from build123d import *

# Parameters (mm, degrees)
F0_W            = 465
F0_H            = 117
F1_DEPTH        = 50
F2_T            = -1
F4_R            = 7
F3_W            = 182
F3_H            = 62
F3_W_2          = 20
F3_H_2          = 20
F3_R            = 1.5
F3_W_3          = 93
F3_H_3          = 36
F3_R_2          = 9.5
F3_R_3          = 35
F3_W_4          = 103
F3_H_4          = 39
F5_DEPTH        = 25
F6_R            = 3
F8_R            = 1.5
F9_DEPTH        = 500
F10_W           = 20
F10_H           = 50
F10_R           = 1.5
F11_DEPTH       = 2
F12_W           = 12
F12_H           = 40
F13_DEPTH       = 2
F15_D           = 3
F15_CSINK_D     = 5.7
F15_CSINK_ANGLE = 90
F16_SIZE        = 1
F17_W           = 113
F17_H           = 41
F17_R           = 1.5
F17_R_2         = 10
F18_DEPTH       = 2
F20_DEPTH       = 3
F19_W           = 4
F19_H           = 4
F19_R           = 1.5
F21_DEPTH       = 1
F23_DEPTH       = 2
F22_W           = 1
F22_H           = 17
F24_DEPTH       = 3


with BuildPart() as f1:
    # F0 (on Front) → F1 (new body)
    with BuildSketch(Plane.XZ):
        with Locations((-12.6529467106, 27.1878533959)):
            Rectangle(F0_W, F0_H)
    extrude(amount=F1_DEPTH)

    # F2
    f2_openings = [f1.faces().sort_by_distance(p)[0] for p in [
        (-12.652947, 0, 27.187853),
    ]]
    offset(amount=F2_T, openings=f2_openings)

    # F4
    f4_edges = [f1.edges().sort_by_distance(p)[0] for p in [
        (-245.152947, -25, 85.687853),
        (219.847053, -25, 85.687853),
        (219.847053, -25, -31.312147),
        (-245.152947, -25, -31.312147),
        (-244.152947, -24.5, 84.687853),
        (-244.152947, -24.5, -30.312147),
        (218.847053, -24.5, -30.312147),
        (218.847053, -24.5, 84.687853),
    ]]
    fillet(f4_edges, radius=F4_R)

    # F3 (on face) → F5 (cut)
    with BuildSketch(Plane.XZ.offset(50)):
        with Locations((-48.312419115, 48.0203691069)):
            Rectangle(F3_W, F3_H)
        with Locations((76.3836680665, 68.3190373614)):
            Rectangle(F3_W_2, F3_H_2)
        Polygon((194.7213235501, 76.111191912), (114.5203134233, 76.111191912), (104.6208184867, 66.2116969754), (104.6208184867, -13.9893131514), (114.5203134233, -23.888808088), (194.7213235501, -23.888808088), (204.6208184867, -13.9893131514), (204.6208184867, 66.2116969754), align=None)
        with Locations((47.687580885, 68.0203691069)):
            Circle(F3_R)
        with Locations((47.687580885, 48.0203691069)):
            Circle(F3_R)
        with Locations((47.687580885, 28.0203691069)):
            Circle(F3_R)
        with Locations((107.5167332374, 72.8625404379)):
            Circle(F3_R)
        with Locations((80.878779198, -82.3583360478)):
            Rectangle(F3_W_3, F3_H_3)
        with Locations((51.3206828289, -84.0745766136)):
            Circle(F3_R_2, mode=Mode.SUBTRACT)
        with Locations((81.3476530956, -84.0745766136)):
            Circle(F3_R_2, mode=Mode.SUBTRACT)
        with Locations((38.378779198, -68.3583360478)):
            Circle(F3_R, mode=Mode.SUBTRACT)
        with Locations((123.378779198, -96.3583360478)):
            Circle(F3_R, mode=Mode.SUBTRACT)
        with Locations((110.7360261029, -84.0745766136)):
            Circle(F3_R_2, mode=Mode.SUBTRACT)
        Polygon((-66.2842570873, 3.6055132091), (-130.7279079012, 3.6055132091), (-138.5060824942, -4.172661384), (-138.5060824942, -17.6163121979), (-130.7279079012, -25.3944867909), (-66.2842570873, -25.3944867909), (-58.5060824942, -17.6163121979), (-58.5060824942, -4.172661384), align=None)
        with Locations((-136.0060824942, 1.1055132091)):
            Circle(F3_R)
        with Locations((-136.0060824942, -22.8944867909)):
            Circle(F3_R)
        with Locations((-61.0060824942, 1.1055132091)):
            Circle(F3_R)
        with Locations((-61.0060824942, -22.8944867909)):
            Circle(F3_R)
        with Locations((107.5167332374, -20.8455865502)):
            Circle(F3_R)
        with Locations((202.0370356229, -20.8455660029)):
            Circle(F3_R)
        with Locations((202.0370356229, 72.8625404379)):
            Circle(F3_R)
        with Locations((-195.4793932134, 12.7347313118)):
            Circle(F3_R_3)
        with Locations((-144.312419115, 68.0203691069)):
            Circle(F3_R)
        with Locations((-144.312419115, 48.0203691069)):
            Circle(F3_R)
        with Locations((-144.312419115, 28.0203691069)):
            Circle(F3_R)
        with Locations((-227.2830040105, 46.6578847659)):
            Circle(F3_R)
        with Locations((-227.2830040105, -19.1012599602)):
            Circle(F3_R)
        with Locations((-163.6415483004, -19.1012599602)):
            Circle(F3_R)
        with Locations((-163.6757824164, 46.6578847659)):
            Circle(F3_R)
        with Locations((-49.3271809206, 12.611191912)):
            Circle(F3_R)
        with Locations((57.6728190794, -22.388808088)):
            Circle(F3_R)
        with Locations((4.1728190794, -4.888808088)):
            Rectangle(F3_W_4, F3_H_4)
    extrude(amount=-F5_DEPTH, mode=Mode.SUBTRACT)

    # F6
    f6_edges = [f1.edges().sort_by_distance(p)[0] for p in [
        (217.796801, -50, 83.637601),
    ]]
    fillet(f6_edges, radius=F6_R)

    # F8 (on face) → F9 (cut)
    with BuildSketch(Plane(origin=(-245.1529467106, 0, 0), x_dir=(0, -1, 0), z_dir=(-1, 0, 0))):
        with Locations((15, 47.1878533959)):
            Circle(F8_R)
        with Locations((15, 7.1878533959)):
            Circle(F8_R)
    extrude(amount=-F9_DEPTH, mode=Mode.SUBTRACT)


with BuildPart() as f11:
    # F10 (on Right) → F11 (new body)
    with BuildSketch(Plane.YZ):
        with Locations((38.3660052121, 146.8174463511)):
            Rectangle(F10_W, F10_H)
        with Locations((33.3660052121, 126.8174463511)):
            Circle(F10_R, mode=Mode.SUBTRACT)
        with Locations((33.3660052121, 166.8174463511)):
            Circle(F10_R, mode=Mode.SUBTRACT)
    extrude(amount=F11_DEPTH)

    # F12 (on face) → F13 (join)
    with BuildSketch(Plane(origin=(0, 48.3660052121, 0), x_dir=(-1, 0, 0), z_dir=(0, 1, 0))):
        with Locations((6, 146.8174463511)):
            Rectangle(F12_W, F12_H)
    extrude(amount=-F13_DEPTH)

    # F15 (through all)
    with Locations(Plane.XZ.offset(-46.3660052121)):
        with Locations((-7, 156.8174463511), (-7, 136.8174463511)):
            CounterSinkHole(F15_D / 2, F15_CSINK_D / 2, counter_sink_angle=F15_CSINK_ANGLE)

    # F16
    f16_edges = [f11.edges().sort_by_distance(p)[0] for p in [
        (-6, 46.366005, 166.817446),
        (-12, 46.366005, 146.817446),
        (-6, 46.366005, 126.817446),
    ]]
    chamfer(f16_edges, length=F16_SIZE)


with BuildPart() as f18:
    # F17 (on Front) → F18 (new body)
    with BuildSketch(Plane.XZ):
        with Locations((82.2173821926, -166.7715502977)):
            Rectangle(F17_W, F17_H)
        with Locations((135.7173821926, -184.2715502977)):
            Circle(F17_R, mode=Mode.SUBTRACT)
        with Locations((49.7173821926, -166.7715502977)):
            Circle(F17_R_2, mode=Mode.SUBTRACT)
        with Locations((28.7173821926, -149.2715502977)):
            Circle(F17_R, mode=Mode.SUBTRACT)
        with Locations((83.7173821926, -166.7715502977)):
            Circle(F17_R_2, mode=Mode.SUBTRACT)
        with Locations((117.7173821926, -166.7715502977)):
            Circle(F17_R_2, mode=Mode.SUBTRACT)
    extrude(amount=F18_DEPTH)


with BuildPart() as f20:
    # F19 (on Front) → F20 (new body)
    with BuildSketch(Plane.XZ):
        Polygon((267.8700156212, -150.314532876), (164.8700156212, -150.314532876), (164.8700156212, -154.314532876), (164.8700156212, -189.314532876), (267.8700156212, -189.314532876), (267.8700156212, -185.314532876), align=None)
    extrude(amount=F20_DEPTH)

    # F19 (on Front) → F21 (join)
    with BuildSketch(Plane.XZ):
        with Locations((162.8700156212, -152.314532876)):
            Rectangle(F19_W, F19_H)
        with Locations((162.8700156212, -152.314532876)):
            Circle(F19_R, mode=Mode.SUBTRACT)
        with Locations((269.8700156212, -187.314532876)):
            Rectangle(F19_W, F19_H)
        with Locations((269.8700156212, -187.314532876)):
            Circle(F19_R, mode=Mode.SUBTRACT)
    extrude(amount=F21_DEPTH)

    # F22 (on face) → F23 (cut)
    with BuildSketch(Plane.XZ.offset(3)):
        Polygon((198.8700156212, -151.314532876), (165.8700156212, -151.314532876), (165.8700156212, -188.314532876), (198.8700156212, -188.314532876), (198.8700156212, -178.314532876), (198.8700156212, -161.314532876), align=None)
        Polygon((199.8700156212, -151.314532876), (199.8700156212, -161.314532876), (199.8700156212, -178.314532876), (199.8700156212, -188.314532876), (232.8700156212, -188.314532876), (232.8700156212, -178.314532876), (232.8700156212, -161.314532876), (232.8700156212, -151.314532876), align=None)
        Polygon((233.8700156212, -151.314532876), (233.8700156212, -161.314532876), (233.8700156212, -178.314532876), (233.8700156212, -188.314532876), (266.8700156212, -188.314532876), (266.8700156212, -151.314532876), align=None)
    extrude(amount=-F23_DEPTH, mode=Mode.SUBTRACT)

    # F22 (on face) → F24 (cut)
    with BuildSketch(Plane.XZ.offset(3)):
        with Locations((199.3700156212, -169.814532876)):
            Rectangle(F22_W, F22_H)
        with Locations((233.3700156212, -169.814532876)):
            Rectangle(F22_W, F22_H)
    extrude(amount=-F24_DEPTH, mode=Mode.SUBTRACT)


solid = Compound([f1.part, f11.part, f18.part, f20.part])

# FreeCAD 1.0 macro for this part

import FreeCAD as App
import Part
import Sketcher


def edges_at(feature, points):
    """Names of the edges that pass closest to the given points."""
    edges = feature.Shape.Edges
    near = lambda p: min(range(len(edges)), key=lambda i: edges[i].distToShape(Part.Vertex(*p))[0])
    return sorted({f"Edge{near(p) + 1}" for p in points})


def faces_at(feature, points):
    """Names of the faces that lie closest to the given points."""
    faces = feature.Shape.Faces
    near = lambda p: min(range(len(faces)), key=lambda i: faces[i].distToShape(Part.Vertex(*p))[0])
    return sorted({f"Face{near(p) + 1}" for p in points})

doc = App.newDocument("Part")
body = doc.addObject("PartDesign::Body", "Body")

# Sketch on XZ plane
sketch1 = body.newObject("Sketcher::SketchObject", "Sketch")
sketch1.AttachmentSupport = (doc.getObject("XZ_Plane"), [""])
sketch1.MapMode = "FlatFace"
sketch1.addGeometry(Part.LineSegment(App.Vector(-245, 86, 0), App.Vector(-245, -31, 0)), False)
sketch1.addGeometry(Part.LineSegment(App.Vector(-245, -31, 0), App.Vector(220, -31, 0)), False)
sketch1.addGeometry(Part.LineSegment(App.Vector(220, -31, 0), App.Vector(220, 86, 0)), False)
sketch1.addGeometry(Part.LineSegment(App.Vector(220, 86, 0), App.Vector(-245, 86, 0)), False)
sketch1.addConstraint(Sketcher.Constraint("Coincident", 0, 2, 1, 1))
sketch1.addConstraint(Sketcher.Constraint("Coincident", 1, 2, 2, 1))
sketch1.addConstraint(Sketcher.Constraint("Coincident", 2, 2, 3, 1))
sketch1.addConstraint(Sketcher.Constraint("Coincident", 3, 2, 0, 1))
sketch1.addConstraint(Sketcher.Constraint("Vertical", 0))
sketch1.addConstraint(Sketcher.Constraint("Horizontal", 1))
sketch1.addConstraint(Sketcher.Constraint("Vertical", 2))
sketch1.addConstraint(Sketcher.Constraint("Horizontal", 3))
sketch1.addConstraint(Sketcher.Constraint("DistanceX", 1, 1, 1, 2, 465.0))
sketch1.addConstraint(Sketcher.Constraint("DistanceY", 0, 2, 0, 1, 117.0))
sketch1.addConstraint(Sketcher.Constraint("DistanceX", 0, 2, -1, 1, 245.152947))
sketch1.addConstraint(Sketcher.Constraint("DistanceY", 0, 2, -1, 1, 31.312147))
pad1 = body.newObject("PartDesign::Pad", "Pad")
pad1.Profile = sketch1
pad1.Length = 50
doc.recompute()

thickness = body.newObject("PartDesign::Thickness", "Thickness")
thickness.Base = (pad1, faces_at(pad1, [(-12.653, 0, 27.188)]))
thickness.Value = 1
thickness.Reversed = True
thickness.Join = "Arc"
doc.recompute()

fillet = body.newObject("PartDesign::Fillet", "Fillet")
fillet.Base = (thickness, edges_at(thickness, [
    (-245.153, -25, 85.688),
    (219.847, -25, 85.688),
    (219.847, -25, -31.312),
    (-245.153, -25, -31.312),
    (-244.153, -24.5, 84.688),
    (-244.153, -24.5, -30.312),
    (218.847, -24.5, -30.312),
    (218.847, -24.5, 84.688),
]))
fillet.Radius = 7

# Sketch on XZ plane
sketch2 = body.newObject("Sketcher::SketchObject", "Sketch001")
sketch2.AttachmentSupport = (doc.getObject("XZ_Plane"), [""])
sketch2.MapMode = "FlatFace"
sketch2.AttachmentOffset = App.Placement(App.Vector(0, 0, 50), App.Rotation())
sketch2.addGeometry(Part.LineSegment(App.Vector(-139.3, 79, 0), App.Vector(-139.3, 17, 0)), False)
sketch2.addGeometry(Part.LineSegment(App.Vector(-139.3, 17, 0), App.Vector(42.7, 17, 0)), False)
sketch2.addGeometry(Part.LineSegment(App.Vector(42.7, 17, 0), App.Vector(42.7, 79, 0)), False)
sketch2.addGeometry(Part.LineSegment(App.Vector(42.7, 79, 0), App.Vector(-139.3, 79, 0)), False)
sketch2.addGeometry(Part.LineSegment(App.Vector(66.4, 78.3, 0), App.Vector(66.4, 58.3, 0)), False)
sketch2.addGeometry(Part.LineSegment(App.Vector(66.4, 58.3, 0), App.Vector(86.4, 58.3, 0)), False)
sketch2.addGeometry(Part.LineSegment(App.Vector(86.4, 58.3, 0), App.Vector(86.4, 78.3, 0)), False)
sketch2.addGeometry(Part.LineSegment(App.Vector(86.4, 78.3, 0), App.Vector(66.4, 78.3, 0)), False)
sketch2.addGeometry(Part.LineSegment(App.Vector(194.7, 76.1, 0), App.Vector(114.5, 76.1, 0)), False)
sketch2.addGeometry(Part.LineSegment(App.Vector(114.5, 76.1, 0), App.Vector(104.6, 66.2, 0)), False)
sketch2.addGeometry(Part.LineSegment(App.Vector(104.6, 66.2, 0), App.Vector(104.6, -14, 0)), False)
sketch2.addGeometry(Part.LineSegment(App.Vector(104.6, -14, 0), App.Vector(114.5, -23.9, 0)), False)
sketch2.addGeometry(Part.LineSegment(App.Vector(114.5, -23.9, 0), App.Vector(194.7, -23.9, 0)), False)
sketch2.addGeometry(Part.LineSegment(App.Vector(194.7, -23.9, 0), App.Vector(204.6, -14, 0)), False)
sketch2.addGeometry(Part.LineSegment(App.Vector(204.6, -14, 0), App.Vector(204.6, 66.2, 0)), False)
sketch2.addGeometry(Part.LineSegment(App.Vector(204.6, 66.2, 0), App.Vector(194.7, 76.1, 0)), False)
sketch2.addGeometry(Part.Circle(App.Vector(47.7, 68, 0), App.Vector(0, 0, 1), 1.5), False)
sketch2.addGeometry(Part.Circle(App.Vector(47.7, 48, 0), App.Vector(0, 0, 1), 1.5), False)
sketch2.addGeometry(Part.Circle(App.Vector(47.7, 28, 0), App.Vector(0, 0, 1), 1.5), False)
sketch2.addGeometry(Part.Circle(App.Vector(107.5, 72.9, 0), App.Vector(0, 0, 1), 1.5), False)
sketch2.addGeometry(Part.LineSegment(App.Vector(34.4, -64.4, 0), App.Vector(34.4, -100.4, 0)), False)
sketch2.addGeometry(Part.LineSegment(App.Vector(34.4, -100.4, 0), App.Vector(127.4, -100.4, 0)), False)
sketch2.addGeometry(Part.LineSegment(App.Vector(127.4, -100.4, 0), App.Vector(127.4, -64.4, 0)), False)
sketch2.addGeometry(Part.LineSegment(App.Vector(127.4, -64.4, 0), App.Vector(34.4, -64.4, 0)), False)
sketch2.addGeometry(Part.Circle(App.Vector(51.3, -84.1, 0), App.Vector(0, 0, 1), 9.5), False)
sketch2.addGeometry(Part.Circle(App.Vector(123.4, -96.4, 0), App.Vector(0, 0, 1), 1.5), False)
sketch2.addGeometry(Part.Circle(App.Vector(81.3, -84.1, 0), App.Vector(0, 0, 1), 9.5), False)
sketch2.addGeometry(Part.Circle(App.Vector(110.7, -84.1, 0), App.Vector(0, 0, 1), 9.5), False)
sketch2.addGeometry(Part.Circle(App.Vector(38.4, -68.4, 0), App.Vector(0, 0, 1), 1.5), False)
sketch2.addGeometry(Part.LineSegment(App.Vector(-66.3, 3.6, 0), App.Vector(-130.7, 3.6, 0)), False)
sketch2.addGeometry(Part.LineSegment(App.Vector(-130.7, 3.6, 0), App.Vector(-138.5, -4.2, 0)), False)
sketch2.addGeometry(Part.LineSegment(App.Vector(-138.5, -4.2, 0), App.Vector(-138.5, -17.6, 0)), False)
sketch2.addGeometry(Part.LineSegment(App.Vector(-138.5, -17.6, 0), App.Vector(-130.7, -25.4, 0)), False)
sketch2.addGeometry(Part.LineSegment(App.Vector(-130.7, -25.4, 0), App.Vector(-66.3, -25.4, 0)), False)
sketch2.addGeometry(Part.LineSegment(App.Vector(-66.3, -25.4, 0), App.Vector(-58.5, -17.6, 0)), False)
sketch2.addGeometry(Part.LineSegment(App.Vector(-58.5, -17.6, 0), App.Vector(-58.5, -4.2, 0)), False)
sketch2.addGeometry(Part.LineSegment(App.Vector(-58.5, -4.2, 0), App.Vector(-66.3, 3.6, 0)), False)
sketch2.addGeometry(Part.Circle(App.Vector(-136, 1.1, 0), App.Vector(0, 0, 1), 1.5), False)
sketch2.addGeometry(Part.Circle(App.Vector(-136, -22.9, 0), App.Vector(0, 0, 1), 1.5), False)
sketch2.addGeometry(Part.Circle(App.Vector(-61, 1.1, 0), App.Vector(0, 0, 1), 1.5), False)
sketch2.addGeometry(Part.Circle(App.Vector(-61, -22.9, 0), App.Vector(0, 0, 1), 1.5), False)
sketch2.addGeometry(Part.Circle(App.Vector(107.5, -20.8, 0), App.Vector(0, 0, 1), 1.5), False)
sketch2.addGeometry(Part.Circle(App.Vector(202, -20.8, 0), App.Vector(0, 0, 1), 1.5), False)
sketch2.addGeometry(Part.Circle(App.Vector(202, 72.9, 0), App.Vector(0, 0, 1), 1.5), False)
sketch2.addGeometry(Part.Circle(App.Vector(-195.5, 12.7, 0), App.Vector(0, 0, 1), 35), False)
sketch2.addGeometry(Part.Circle(App.Vector(-144.3, 68, 0), App.Vector(0, 0, 1), 1.5), False)
sketch2.addGeometry(Part.Circle(App.Vector(-144.3, 48, 0), App.Vector(0, 0, 1), 1.5), False)
sketch2.addGeometry(Part.Circle(App.Vector(-144.3, 28, 0), App.Vector(0, 0, 1), 1.5), False)
sketch2.addGeometry(Part.Circle(App.Vector(-227.3, 46.7, 0), App.Vector(0, 0, 1), 1.5), False)
sketch2.addGeometry(Part.Circle(App.Vector(-227.3, -19.1, 0), App.Vector(0, 0, 1), 1.5), False)
sketch2.addGeometry(Part.Circle(App.Vector(-163.6, -19.1, 0), App.Vector(0, 0, 1), 1.5), False)
sketch2.addGeometry(Part.Circle(App.Vector(-163.7, 46.7, 0), App.Vector(0, 0, 1), 1.5), False)
sketch2.addGeometry(Part.Circle(App.Vector(-49.3, 12.6, 0), App.Vector(0, 0, 1), 1.5), False)
sketch2.addGeometry(Part.Circle(App.Vector(57.7, -22.4, 0), App.Vector(0, 0, 1), 1.5), False)
sketch2.addGeometry(Part.LineSegment(App.Vector(-47.3, 14.6, 0), App.Vector(-47.3, -24.4, 0)), False)
sketch2.addGeometry(Part.LineSegment(App.Vector(-47.3, -24.4, 0), App.Vector(55.7, -24.4, 0)), False)
sketch2.addGeometry(Part.LineSegment(App.Vector(55.7, -24.4, 0), App.Vector(55.7, 14.6, 0)), False)
sketch2.addGeometry(Part.LineSegment(App.Vector(55.7, 14.6, 0), App.Vector(-47.3, 14.6, 0)), False)
sketch2.addConstraint(Sketcher.Constraint("Coincident", 0, 2, 1, 1))
sketch2.addConstraint(Sketcher.Constraint("Coincident", 1, 2, 2, 1))
sketch2.addConstraint(Sketcher.Constraint("Coincident", 2, 2, 3, 1))
sketch2.addConstraint(Sketcher.Constraint("Coincident", 3, 2, 0, 1))
sketch2.addConstraint(Sketcher.Constraint("Coincident", 4, 2, 5, 1))
sketch2.addConstraint(Sketcher.Constraint("Coincident", 5, 2, 6, 1))
sketch2.addConstraint(Sketcher.Constraint("Coincident", 6, 2, 7, 1))
sketch2.addConstraint(Sketcher.Constraint("Coincident", 7, 2, 4, 1))
sketch2.addConstraint(Sketcher.Constraint("Coincident", 8, 2, 9, 1))
sketch2.addConstraint(Sketcher.Constraint("Coincident", 9, 2, 10, 1))
sketch2.addConstraint(Sketcher.Constraint("Coincident", 10, 2, 11, 1))
sketch2.addConstraint(Sketcher.Constraint("Coincident", 11, 2, 12, 1))
sketch2.addConstraint(Sketcher.Constraint("Coincident", 12, 2, 13, 1))
sketch2.addConstraint(Sketcher.Constraint("Coincident", 13, 2, 14, 1))
sketch2.addConstraint(Sketcher.Constraint("Coincident", 14, 2, 15, 1))
sketch2.addConstraint(Sketcher.Constraint("Coincident", 15, 2, 8, 1))
sketch2.addConstraint(Sketcher.Constraint("Coincident", 20, 2, 21, 1))
sketch2.addConstraint(Sketcher.Constraint("Coincident", 21, 2, 22, 1))
sketch2.addConstraint(Sketcher.Constraint("Coincident", 22, 2, 23, 1))
sketch2.addConstraint(Sketcher.Constraint("Coincident", 23, 2, 20, 1))
sketch2.addConstraint(Sketcher.Constraint("Coincident", 29, 2, 30, 1))
sketch2.addConstraint(Sketcher.Constraint("Coincident", 30, 2, 31, 1))
sketch2.addConstraint(Sketcher.Constraint("Coincident", 31, 2, 32, 1))
sketch2.addConstraint(Sketcher.Constraint("Coincident", 32, 2, 33, 1))
sketch2.addConstraint(Sketcher.Constraint("Coincident", 33, 2, 34, 1))
sketch2.addConstraint(Sketcher.Constraint("Coincident", 34, 2, 35, 1))
sketch2.addConstraint(Sketcher.Constraint("Coincident", 35, 2, 36, 1))
sketch2.addConstraint(Sketcher.Constraint("Coincident", 36, 2, 29, 1))
sketch2.addConstraint(Sketcher.Constraint("Coincident", 54, 2, 55, 1))
sketch2.addConstraint(Sketcher.Constraint("Coincident", 55, 2, 56, 1))
sketch2.addConstraint(Sketcher.Constraint("Coincident", 56, 2, 57, 1))
sketch2.addConstraint(Sketcher.Constraint("Coincident", 57, 2, 54, 1))
sketch2.addConstraint(Sketcher.Constraint("Vertical", 0))
sketch2.addConstraint(Sketcher.Constraint("Horizontal", 1))
sketch2.addConstraint(Sketcher.Constraint("Vertical", 2))
sketch2.addConstraint(Sketcher.Constraint("Horizontal", 3))
sketch2.addConstraint(Sketcher.Constraint("Vertical", 4))
sketch2.addConstraint(Sketcher.Constraint("Horizontal", 5))
sketch2.addConstraint(Sketcher.Constraint("Vertical", 6))
sketch2.addConstraint(Sketcher.Constraint("Horizontal", 7))
sketch2.addConstraint(Sketcher.Constraint("Horizontal", 8))
sketch2.addConstraint(Sketcher.Constraint("Vertical", 10))
sketch2.addConstraint(Sketcher.Constraint("Horizontal", 12))
sketch2.addConstraint(Sketcher.Constraint("Vertical", 14))
sketch2.addConstraint(Sketcher.Constraint("Vertical", 20))
sketch2.addConstraint(Sketcher.Constraint("Horizontal", 21))
sketch2.addConstraint(Sketcher.Constraint("Vertical", 22))
sketch2.addConstraint(Sketcher.Constraint("Horizontal", 23))
sketch2.addConstraint(Sketcher.Constraint("Horizontal", 29))
sketch2.addConstraint(Sketcher.Constraint("Vertical", 31))
sketch2.addConstraint(Sketcher.Constraint("Horizontal", 33))
sketch2.addConstraint(Sketcher.Constraint("Vertical", 35))
sketch2.addConstraint(Sketcher.Constraint("Vertical", 54))
sketch2.addConstraint(Sketcher.Constraint("Horizontal", 55))
sketch2.addConstraint(Sketcher.Constraint("Vertical", 56))
sketch2.addConstraint(Sketcher.Constraint("Horizontal", 57))
sketch2.addConstraint(Sketcher.Constraint("Equal", 16, 17))
sketch2.addConstraint(Sketcher.Constraint("Equal", 17, 18))
sketch2.addConstraint(Sketcher.Constraint("Equal", 18, 19))
sketch2.addConstraint(Sketcher.Constraint("Equal", 19, 25))
sketch2.addConstraint(Sketcher.Constraint("Equal", 24, 26))
sketch2.addConstraint(Sketcher.Constraint("Equal", 26, 27))
sketch2.addConstraint(Sketcher.Constraint("Equal", 25, 28))
sketch2.addConstraint(Sketcher.Constraint("Equal", 28, 37))
sketch2.addConstraint(Sketcher.Constraint("Equal", 37, 38))
sketch2.addConstraint(Sketcher.Constraint("Equal", 38, 39))
sketch2.addConstraint(Sketcher.Constraint("Equal", 39, 40))
sketch2.addConstraint(Sketcher.Constraint("Equal", 40, 41))
sketch2.addConstraint(Sketcher.Constraint("Equal", 41, 42))
sketch2.addConstraint(Sketcher.Constraint("Equal", 42, 43))
sketch2.addConstraint(Sketcher.Constraint("Equal", 43, 45))
sketch2.addConstraint(Sketcher.Constraint("Equal", 45, 46))
sketch2.addConstraint(Sketcher.Constraint("Equal", 46, 47))
sketch2.addConstraint(Sketcher.Constraint("Equal", 47, 48))
sketch2.addConstraint(Sketcher.Constraint("Equal", 48, 49))
sketch2.addConstraint(Sketcher.Constraint("Equal", 49, 50))
sketch2.addConstraint(Sketcher.Constraint("Equal", 50, 51))
sketch2.addConstraint(Sketcher.Constraint("Equal", 51, 52))
sketch2.addConstraint(Sketcher.Constraint("Equal", 52, 53))
sketch2.addConstraint(Sketcher.Constraint("Perpendicular", 9, 11))
sketch2.addConstraint(Sketcher.Constraint("Perpendicular", 11, 13))
sketch2.addConstraint(Sketcher.Constraint("Perpendicular", 13, 15))
sketch2.addConstraint(Sketcher.Constraint("Perpendicular", 15, 30))
sketch2.addConstraint(Sketcher.Constraint("Perpendicular", 30, 32))
sketch2.addConstraint(Sketcher.Constraint("Perpendicular", 32, 34))
sketch2.addConstraint(Sketcher.Constraint("Perpendicular", 34, 36))
sketch2.addConstraint(Sketcher.Constraint("Horizontal", 24, 3, 26, 3))
sketch2.addConstraint(Sketcher.Constraint("Horizontal", 26, 3, 27, 3))
sketch2.addConstraint(Sketcher.Constraint("Horizontal", 37, 3, 39, 3))
sketch2.addConstraint(Sketcher.Constraint("Horizontal", 38, 3, 40, 3))
sketch2.addConstraint(Sketcher.Constraint("Horizontal", 19, 3, 43, 3))
sketch2.addConstraint(Sketcher.Constraint("Horizontal", 16, 3, 45, 3))
sketch2.addConstraint(Sketcher.Constraint("Horizontal", 17, 3, 46, 3))
sketch2.addConstraint(Sketcher.Constraint("Horizontal", 18, 3, 47, 3))
sketch2.addConstraint(Sketcher.Constraint("Horizontal", 49, 3, 50, 3))
sketch2.addConstraint(Sketcher.Constraint("Horizontal", 48, 3, 51, 3))
sketch2.addConstraint(Sketcher.Constraint("Horizontal", 10, 2, 13, 2))
sketch2.addConstraint(Sketcher.Constraint("Horizontal", 9, 2, 14, 2))
sketch2.addConstraint(Sketcher.Constraint("Horizontal", 31, 2, 34, 2))
sketch2.addConstraint(Sketcher.Constraint("Horizontal", 30, 2, 35, 2))
sketch2.addConstraint(Sketcher.Constraint("Vertical", 16, 3, 17, 3))
sketch2.addConstraint(Sketcher.Constraint("Vertical", 17, 3, 18, 3))
sketch2.addConstraint(Sketcher.Constraint("Vertical", 37, 3, 38, 3))
sketch2.addConstraint(Sketcher.Constraint("Vertical", 39, 3, 40, 3))
sketch2.addConstraint(Sketcher.Constraint("Vertical", 19, 3, 41, 3))
sketch2.addConstraint(Sketcher.Constraint("Vertical", 42, 3, 43, 3))
sketch2.addConstraint(Sketcher.Constraint("Vertical", 45, 3, 46, 3))
sketch2.addConstraint(Sketcher.Constraint("Vertical", 46, 3, 47, 3))
sketch2.addConstraint(Sketcher.Constraint("Vertical", 48, 3, 49, 3))
sketch2.addConstraint(Sketcher.Constraint("Vertical", 8, 2, 11, 2))
sketch2.addConstraint(Sketcher.Constraint("Vertical", 12, 2, 15, 2))
sketch2.addConstraint(Sketcher.Constraint("Vertical", 29, 2, 32, 2))
sketch2.addConstraint(Sketcher.Constraint("Equal", 7, 4))
sketch2.addConstraint(Sketcher.Constraint("Equal", 12, 10))
sketch2.addConstraint(Sketcher.Constraint("Diameter", 16, 3.0))
sketch2.addConstraint(Sketcher.Constraint("Diameter", 24, 19.0))
sketch2.addConstraint(Sketcher.Constraint("Diameter", 44, 70.0))
sketch2.addConstraint(Sketcher.Constraint("DistanceX", 1, 1, 1, 2, 182.0))
sketch2.addConstraint(Sketcher.Constraint("DistanceX", 5, 1, 5, 2, 20.0))
sketch2.addConstraint(Sketcher.Constraint("DistanceX", 21, 1, 21, 2, 93.0))
sketch2.addConstraint(Sketcher.Constraint("DistanceX", 55, 1, 55, 2, 103.0))
sketch2.addConstraint(Sketcher.Constraint("DistanceY", 0, 2, 0, 1, 62.0))
sketch2.addConstraint(Sketcher.Constraint("DistanceY", 20, 2, 20, 1, 36.0))
sketch2.addConstraint(Sketcher.Constraint("DistanceY", 54, 2, 54, 1, 39.0))
sketch2.addConstraint(Sketcher.Constraint("Distance", 9, 14.0))
sketch2.addConstraint(Sketcher.Constraint("Distance", 30, 11.0))
sketch2.addConstraint(Sketcher.Constraint("DistanceY", 17, 3, 16, 3, 20.0))
sketch2.addConstraint(Sketcher.Constraint("DistanceY", 18, 3, 17, 3, 20.0))
sketch2.addConstraint(Sketcher.Constraint("DistanceX", 28, 3, 25, 3, 85.0))
sketch2.addConstraint(Sketcher.Constraint("DistanceY", 25, 3, 28, 3, 28.0))
sketch2.addConstraint(Sketcher.Constraint("DistanceY", 38, 3, 37, 3, 24.0))
sketch2.addConstraint(Sketcher.Constraint("DistanceX", 37, 3, 39, 3, 75.0))
sketch2.addConstraint(Sketcher.Constraint("DistanceX", 47, 3, 0, 2, 5.0))
sketch2.addConstraint(Sketcher.Constraint("DistanceY", 0, 2, 47, 3, 11.0))
sketch2.addConstraint(Sketcher.Constraint("DistanceX", 1, 2, 18, 3, 5.0))
sketch2.addConstraint(Sketcher.Constraint("DistanceX", 20, 2, 28, 3, 4.0))
sketch2.addConstraint(Sketcher.Constraint("DistanceY", 20, 2, 28, 3, 32.0))
sketch2.addConstraint(Sketcher.Constraint("DistanceY", 32, 2, 29, 2, 29.0))
sketch2.addConstraint(Sketcher.Constraint("DistanceX", 55, 2, 53, 3, 2.0))
sketch2.addConstraint(Sketcher.Constraint("DistanceY", 55, 2, 53, 3, 2.0))
sketch2.addConstraint(Sketcher.Constraint("DistanceX", 52, 3, 57, 2, 2.0))
sketch2.addConstraint(Sketcher.Constraint("DistanceY", 52, 3, 57, 2, 2.0))
sketch2.addConstraint(Sketcher.Constraint("DistanceY", 11, 2, 53, 3, 1.5))
sketch2.addConstraint(Sketcher.Constraint("DistanceY", 37, 3, 29, 2, 2.5))
sketch2.addConstraint(Sketcher.Constraint("DistanceX", 30, 2, 37, 3, 2.5))
sketch2.addConstraint(Sketcher.Constraint("DistanceX", 40, 3, 34, 2, 2.5))
sketch2.addConstraint(Sketcher.Constraint("DistanceX", 53, 3, 10, 2, 46.947999))
sketch2.addConstraint(Sketcher.Constraint("DistanceX", 8, 2, 8, 1, 80.20101))
sketch2.addConstraint(Sketcher.Constraint("DistanceX", 18, 3, 24, 3, 3.633102))
sketch2.addConstraint(Sketcher.Constraint("DistanceX", 18, 3, 25, 3, 75.691198))
sketch2.addConstraint(Sketcher.Constraint("DistanceX", 51, 3, 37, 3, 27.6697))
sketch2.addConstraint(Sketcher.Constraint("DistanceX", 39, 3, 52, 3, 11.678902))
sketch2.addConstraint(Sketcher.Constraint("DistanceY", 50, 3, 30, 2, 14.928599))
sketch2.addConstraint(Sketcher.Constraint("DistanceX", -1, 1, 16, 3, 47.687581))
sketch2.addConstraint(Sketcher.Constraint("DistanceY", -1, 1, 16, 3, 68.020369))
sketch2.addConstraint(Sketcher.Constraint("DistanceY", -1, 1, 19, 3, 72.86254))
sketch2.addConstraint(Sketcher.Constraint("DistanceY", -1, 1, 44, 3, 12.734731))
sketch2.addConstraint(Sketcher.Constraint("DistanceY", 49, 3, -1, 1, 19.10126))
sketch2.addConstraint(Sketcher.Constraint("DistanceX", 50, 3, -1, 1, 163.641548))
sketch2.addConstraint(Sketcher.Constraint("DistanceX", 52, 3, -1, 1, 49.327181))
sketch2.addConstraint(Sketcher.Constraint("DistanceY", -1, 1, 52, 3, 12.611192))
sketch2.addConstraint(Sketcher.Constraint("DistanceX", -1, 1, 4, 2, 66.383668))
sketch2.addConstraint(Sketcher.Constraint("DistanceX", 24, 3, 19, 3, 56.19605))
sketch2.addConstraint(Sketcher.Constraint("DistanceY", 25, 3, 24, 3, 12.283759))
sketch2.addConstraint(Sketcher.Constraint("DistanceX", 24, 3, 26, 3, 30.02697))
sketch2.addConstraint(Sketcher.Constraint("DistanceY", 28, 3, 37, 3, 69.463849))
sketch2.addConstraint(Sketcher.Constraint("DistanceY", 27, 3, 41, 3, 63.22899))
sketch2.addConstraint(Sketcher.Constraint("DistanceY", 25, 3, 42, 3, 75.51277))
sketch2.addConstraint(Sketcher.Constraint("DistanceX", 27, 3, 42, 3, 91.30101))
sketch2.addConstraint(Sketcher.Constraint("DistanceX", 44, 3, 37, 3, 59.473311))
sketch2.addConstraint(Sketcher.Constraint("DistanceX", 48, 3, 44, 3, 31.803611))
sketch2.addConstraint(Sketcher.Constraint("DistanceY", 37, 3, 48, 3, 45.552372))
sketch2.addConstraint(Sketcher.Constraint("DistanceY", 4, 2, 16, 3, 9.701332))
sketch2.addConstraint(Sketcher.Constraint("DistanceX", -1, 1, 27, 3, 110.736026))
pocket1 = body.newObject("PartDesign::Pocket", "Pocket")
pocket1.Profile = sketch2
pocket1.Length = 25
doc.recompute()

fillet2 = body.newObject("PartDesign::Fillet", "Fillet001")
fillet2.Base = (pocket1, edges_at(pocket1, [(217.797, -50, 83.638)]))
fillet2.Radius = 3

# Sketch on YZ plane
sketch3 = body.newObject("Sketcher::SketchObject", "Sketch002")
sketch3.AttachmentSupport = (doc.getObject("YZ_Plane"), [""])
sketch3.MapMode = "FlatFace"
sketch3.AttachmentOffset = App.Placement(App.Vector(0, 0, -245.152947), App.Rotation())
sketch3.addGeometry(Part.Circle(App.Vector(-15, 47.2, 0), App.Vector(0, 0, 1), 1.5), False)
sketch3.addGeometry(Part.Circle(App.Vector(-15, 7.2, 0), App.Vector(0, 0, 1), 1.5), False)
sketch3.addConstraint(Sketcher.Constraint("Equal", 0, 1))
sketch3.addConstraint(Sketcher.Constraint("Vertical", 0, 3, 1, 3))
sketch3.addConstraint(Sketcher.Constraint("Diameter", 0, 3.0))
sketch3.addConstraint(Sketcher.Constraint("DistanceX", 0, 3, -1, 1, 15.0))
sketch3.addConstraint(Sketcher.Constraint("DistanceY", 1, 3, 0, 3, 40.0))
sketch3.addConstraint(Sketcher.Constraint("DistanceY", -1, 1, 0, 3, 47.187853))
pocket2 = body.newObject("PartDesign::Pocket", "Pocket001")
pocket2.Profile = sketch3
pocket2.Length = 500
pocket2.Reversed = True
body2 = doc.addObject("PartDesign::Body", "Body001")

# Sketch on YZ plane
sketch4 = body2.newObject("Sketcher::SketchObject", "Sketch003")
sketch4.AttachmentSupport = (doc.getObject("YZ_Plane001"), [""])
sketch4.MapMode = "FlatFace"
sketch4.addGeometry(Part.LineSegment(App.Vector(28.4, 171.8, 0), App.Vector(28.4, 121.8, 0)), False)
sketch4.addGeometry(Part.LineSegment(App.Vector(28.4, 121.8, 0), App.Vector(48.4, 121.8, 0)), False)
sketch4.addGeometry(Part.LineSegment(App.Vector(48.4, 121.8, 0), App.Vector(48.4, 171.8, 0)), False)
sketch4.addGeometry(Part.LineSegment(App.Vector(48.4, 171.8, 0), App.Vector(28.4, 171.8, 0)), False)
sketch4.addGeometry(Part.Circle(App.Vector(33.4, 126.8, 0), App.Vector(0, 0, 1), 1.5), False)
sketch4.addGeometry(Part.Circle(App.Vector(33.4, 166.8, 0), App.Vector(0, 0, 1), 1.5), False)
sketch4.addConstraint(Sketcher.Constraint("Coincident", 0, 2, 1, 1))
sketch4.addConstraint(Sketcher.Constraint("Coincident", 1, 2, 2, 1))
sketch4.addConstraint(Sketcher.Constraint("Coincident", 2, 2, 3, 1))
sketch4.addConstraint(Sketcher.Constraint("Coincident", 3, 2, 0, 1))
sketch4.addConstraint(Sketcher.Constraint("Vertical", 0))
sketch4.addConstraint(Sketcher.Constraint("Horizontal", 1))
sketch4.addConstraint(Sketcher.Constraint("Vertical", 2))
sketch4.addConstraint(Sketcher.Constraint("Horizontal", 3))
sketch4.addConstraint(Sketcher.Constraint("Equal", 4, 5))
sketch4.addConstraint(Sketcher.Constraint("Vertical", 4, 3, 5, 3))
sketch4.addConstraint(Sketcher.Constraint("Diameter", 4, 3.0))
sketch4.addConstraint(Sketcher.Constraint("DistanceX", 1, 1, 1, 2, 20.0))
sketch4.addConstraint(Sketcher.Constraint("DistanceY", 0, 2, 0, 1, 50.0))
sketch4.addConstraint(Sketcher.Constraint("DistanceY", 4, 3, 5, 3, 40.0))
sketch4.addConstraint(Sketcher.Constraint("DistanceX", 0, 2, 4, 3, 5.0))
sketch4.addConstraint(Sketcher.Constraint("DistanceY", 0, 2, 4, 3, 5.0))
sketch4.addConstraint(Sketcher.Constraint("DistanceX", -1, 1, 4, 3, 33.366005))
sketch4.addConstraint(Sketcher.Constraint("DistanceY", -1, 1, 4, 3, 126.817446))
pad2 = body2.newObject("PartDesign::Pad", "Pad001")
pad2.Profile = sketch4
pad2.Length = 2

# Sketch on XZ plane
sketch5 = body2.newObject("Sketcher::SketchObject", "Sketch004")
sketch5.AttachmentSupport = (doc.getObject("XZ_Plane001"), [""])
sketch5.MapMode = "FlatFace"
sketch5.AttachmentOffset = App.Placement(App.Vector(0, 0, -48.366005), App.Rotation())
sketch5.addGeometry(Part.LineSegment(App.Vector(0, 167, 0), App.Vector(0, 127, 0)), False)
sketch5.addGeometry(Part.LineSegment(App.Vector(0, 127, 0), App.Vector(-12, 127, 0)), False)
sketch5.addGeometry(Part.LineSegment(App.Vector(-12, 127, 0), App.Vector(-12, 167, 0)), False)
sketch5.addGeometry(Part.LineSegment(App.Vector(-12, 167, 0), App.Vector(0, 167, 0)), False)
sketch5.addConstraint(Sketcher.Constraint("Coincident", 0, 2, 1, 1))
sketch5.addConstraint(Sketcher.Constraint("Coincident", 1, 2, 2, 1))
sketch5.addConstraint(Sketcher.Constraint("Coincident", 2, 2, 3, 1))
sketch5.addConstraint(Sketcher.Constraint("Coincident", 3, 2, 0, 1))
sketch5.addConstraint(Sketcher.Constraint("Vertical", 0))
sketch5.addConstraint(Sketcher.Constraint("Horizontal", 1))
sketch5.addConstraint(Sketcher.Constraint("Vertical", 2))
sketch5.addConstraint(Sketcher.Constraint("Horizontal", 3))
sketch5.addConstraint(Sketcher.Constraint("PointOnObject", 0, 2, -2))
sketch5.addConstraint(Sketcher.Constraint("DistanceX", 1, 2, 1, 1, 12.0))
sketch5.addConstraint(Sketcher.Constraint("DistanceY", 0, 2, 0, 1, 40.0))
sketch5.addConstraint(Sketcher.Constraint("DistanceY", -1, 1, 0, 2, 126.817446))
pad3 = body2.newObject("PartDesign::Pad", "Pad002")
pad3.Profile = sketch5
pad3.Length = 2

# Sketch on XZ plane
sketch6 = body2.newObject("Sketcher::SketchObject", "Sketch005")
sketch6.AttachmentSupport = (doc.getObject("XZ_Plane001"), [""])
sketch6.MapMode = "FlatFace"
sketch6.AttachmentOffset = App.Placement(App.Vector(0, 0, -46.366005), App.Rotation())
sketch6.addGeometry(Part.Circle(App.Vector(-7, 156.8, 0), App.Vector(0, 0, 1), 1.5), False)
sketch6.addGeometry(Part.Circle(App.Vector(-7, 136.8, 0), App.Vector(0, 0, 1), 1.5), False)
sketch6.addConstraint(Sketcher.Constraint("Equal", 0, 1))
sketch6.addConstraint(Sketcher.Constraint("Vertical", 0, 3, 1, 3))
sketch6.addConstraint(Sketcher.Constraint("Diameter", 0, 3.0))
sketch6.addConstraint(Sketcher.Constraint("DistanceX", 0, 3, -1, 1, 7.0))
sketch6.addConstraint(Sketcher.Constraint("DistanceY", 1, 3, 0, 3, 20.0))
sketch6.addConstraint(Sketcher.Constraint("DistanceY", -1, 1, 0, 3, 156.817446))
doc.recompute()
hole = body2.newObject("PartDesign::Hole", "Hole")
hole.Profile = sketch6
hole.ThreadType = "None"
hole.Diameter = 3
hole.DepthType = "ThroughAll"
hole.HoleCutType = "Countersink"
hole.HoleCutDiameter = 5.7
hole.HoleCutCountersinkAngle = 90
doc.recompute()

chamfer = body2.newObject("PartDesign::Chamfer", "Chamfer")
chamfer.Base = (hole, edges_at(hole, [(-6, 46.366, 166.817), (-12, 46.366, 146.817), (-6, 46.366, 126.817)]))
chamfer.Size = 1
body3 = doc.addObject("PartDesign::Body", "Body002")

# Sketch on XZ plane
sketch7 = body3.newObject("Sketcher::SketchObject", "Sketch006")
sketch7.AttachmentSupport = (doc.getObject("XZ_Plane002"), [""])
sketch7.MapMode = "FlatFace"
sketch7.addGeometry(Part.LineSegment(App.Vector(25.7, -146.3, 0), App.Vector(25.7, -187.3, 0)), False)
sketch7.addGeometry(Part.LineSegment(App.Vector(25.7, -187.3, 0), App.Vector(138.7, -187.3, 0)), False)
sketch7.addGeometry(Part.LineSegment(App.Vector(138.7, -187.3, 0), App.Vector(138.7, -146.3, 0)), False)
sketch7.addGeometry(Part.LineSegment(App.Vector(138.7, -146.3, 0), App.Vector(25.7, -146.3, 0)), False)
sketch7.addGeometry(Part.Circle(App.Vector(135.7, -184.3, 0), App.Vector(0, 0, 1), 1.5), False)
sketch7.addGeometry(Part.Circle(App.Vector(49.7, -166.8, 0), App.Vector(0, 0, 1), 10), False)
sketch7.addGeometry(Part.Circle(App.Vector(28.7, -149.3, 0), App.Vector(0, 0, 1), 1.5), False)
sketch7.addGeometry(Part.Circle(App.Vector(83.7, -166.8, 0), App.Vector(0, 0, 1), 10), False)
sketch7.addGeometry(Part.Circle(App.Vector(117.7, -166.8, 0), App.Vector(0, 0, 1), 10), False)
sketch7.addConstraint(Sketcher.Constraint("Coincident", 0, 2, 1, 1))
sketch7.addConstraint(Sketcher.Constraint("Coincident", 1, 2, 2, 1))
sketch7.addConstraint(Sketcher.Constraint("Coincident", 2, 2, 3, 1))
sketch7.addConstraint(Sketcher.Constraint("Coincident", 3, 2, 0, 1))
sketch7.addConstraint(Sketcher.Constraint("Vertical", 0))
sketch7.addConstraint(Sketcher.Constraint("Horizontal", 1))
sketch7.addConstraint(Sketcher.Constraint("Vertical", 2))
sketch7.addConstraint(Sketcher.Constraint("Horizontal", 3))
sketch7.addConstraint(Sketcher.Constraint("Equal", 4, 6))
sketch7.addConstraint(Sketcher.Constraint("Equal", 5, 7))
sketch7.addConstraint(Sketcher.Constraint("Equal", 7, 8))
sketch7.addConstraint(Sketcher.Constraint("Horizontal", 5, 3, 7, 3))
sketch7.addConstraint(Sketcher.Constraint("Horizontal", 7, 3, 8, 3))
sketch7.addConstraint(Sketcher.Constraint("Diameter", 4, 3.0))
sketch7.addConstraint(Sketcher.Constraint("Diameter", 5, 20.0))
sketch7.addConstraint(Sketcher.Constraint("DistanceX", 1, 1, 1, 2, 113.0))
sketch7.addConstraint(Sketcher.Constraint("DistanceY", 0, 2, 0, 1, 41.0))
sketch7.addConstraint(Sketcher.Constraint("DistanceX", 5, 3, 4, 3, 86.0))
sketch7.addConstraint(Sketcher.Constraint("DistanceX", 6, 3, 5, 3, 21.0))
sketch7.addConstraint(Sketcher.Constraint("DistanceY", 4, 3, 6, 3, 35.0))
sketch7.addConstraint(Sketcher.Constraint("DistanceX", 5, 3, 7, 3, 34.0))
sketch7.addConstraint(Sketcher.Constraint("DistanceX", 8, 3, 4, 3, 18.0))
sketch7.addConstraint(Sketcher.Constraint("DistanceX", 0, 2, 5, 3, 24.0))
sketch7.addConstraint(Sketcher.Constraint("DistanceY", 0, 2, 6, 3, 38.0))
sketch7.addConstraint(Sketcher.Constraint("DistanceY", 4, 3, 5, 3, 17.5))
sketch7.addConstraint(Sketcher.Constraint("DistanceY", 4, 3, -1, 1, 184.27155))
sketch7.addConstraint(Sketcher.Constraint("DistanceX", -1, 1, 4, 3, 135.717382))
pad4 = body3.newObject("PartDesign::Pad", "Pad003")
pad4.Profile = sketch7
pad4.Length = 2
body4 = doc.addObject("PartDesign::Body", "Body003")

# Sketch on XZ plane
sketch8 = body4.newObject("Sketcher::SketchObject", "Sketch007")
sketch8.AttachmentSupport = (doc.getObject("XZ_Plane003"), [""])
sketch8.MapMode = "FlatFace"
sketch8.addGeometry(Part.LineSegment(App.Vector(268, -150, 0), App.Vector(165, -150, 0)), False)
sketch8.addGeometry(Part.LineSegment(App.Vector(165, -150, 0), App.Vector(165, -189, 0)), False)
sketch8.addGeometry(Part.LineSegment(App.Vector(165, -189, 0), App.Vector(268, -189, 0)), False)
sketch8.addGeometry(Part.LineSegment(App.Vector(268, -189, 0), App.Vector(268, -150, 0)), False)
sketch8.addConstraint(Sketcher.Constraint("Coincident", 0, 2, 1, 1))
sketch8.addConstraint(Sketcher.Constraint("Coincident", 1, 2, 2, 1))
sketch8.addConstraint(Sketcher.Constraint("Coincident", 2, 2, 3, 1))
sketch8.addConstraint(Sketcher.Constraint("Coincident", 3, 2, 0, 1))
sketch8.addConstraint(Sketcher.Constraint("Horizontal", 0))
sketch8.addConstraint(Sketcher.Constraint("Vertical", 1))
sketch8.addConstraint(Sketcher.Constraint("Horizontal", 2))
sketch8.addConstraint(Sketcher.Constraint("Vertical", 3))
sketch8.addConstraint(Sketcher.Constraint("DistanceX", 0, 2, 0, 1, 103.0))
sketch8.addConstraint(Sketcher.Constraint("DistanceY", 1, 2, 1, 1, 39.0))
sketch8.addConstraint(Sketcher.Constraint("DistanceX", -1, 1, 0, 2, 164.870016))
sketch8.addConstraint(Sketcher.Constraint("DistanceY", 0, 2, -1, 1, 150.314533))
pad5 = body4.newObject("PartDesign::Pad", "Pad004")
pad5.Profile = sketch8
pad5.Length = 3

# Sketch on XZ plane
sketch9 = body4.newObject("Sketcher::SketchObject", "Sketch008")
sketch9.AttachmentSupport = (doc.getObject("XZ_Plane003"), [""])
sketch9.MapMode = "FlatFace"
sketch9.addGeometry(Part.LineSegment(App.Vector(160.9, -150.3, 0), App.Vector(160.9, -154.3, 0)), False)
sketch9.addGeometry(Part.LineSegment(App.Vector(160.9, -154.3, 0), App.Vector(164.9, -154.3, 0)), False)
sketch9.addGeometry(Part.LineSegment(App.Vector(164.9, -154.3, 0), App.Vector(164.9, -150.3, 0)), False)
sketch9.addGeometry(Part.LineSegment(App.Vector(164.9, -150.3, 0), App.Vector(160.9, -150.3, 0)), False)
sketch9.addGeometry(Part.Circle(App.Vector(162.9, -152.3, 0), App.Vector(0, 0, 1), 1.5), False)
sketch9.addGeometry(Part.LineSegment(App.Vector(267.9, -185.3, 0), App.Vector(267.9, -189.3, 0)), False)
sketch9.addGeometry(Part.LineSegment(App.Vector(267.9, -189.3, 0), App.Vector(271.9, -189.3, 0)), False)
sketch9.addGeometry(Part.LineSegment(App.Vector(271.9, -189.3, 0), App.Vector(271.9, -185.3, 0)), False)
sketch9.addGeometry(Part.LineSegment(App.Vector(271.9, -185.3, 0), App.Vector(267.9, -185.3, 0)), False)
sketch9.addGeometry(Part.Circle(App.Vector(269.9, -187.3, 0), App.Vector(0, 0, 1), 1.5), False)
sketch9.addConstraint(Sketcher.Constraint("Coincident", 0, 2, 1, 1))
sketch9.addConstraint(Sketcher.Constraint("Coincident", 1, 2, 2, 1))
sketch9.addConstraint(Sketcher.Constraint("Coincident", 2, 2, 3, 1))
sketch9.addConstraint(Sketcher.Constraint("Coincident", 3, 2, 0, 1))
sketch9.addConstraint(Sketcher.Constraint("Coincident", 5, 2, 6, 1))
sketch9.addConstraint(Sketcher.Constraint("Coincident", 6, 2, 7, 1))
sketch9.addConstraint(Sketcher.Constraint("Coincident", 7, 2, 8, 1))
sketch9.addConstraint(Sketcher.Constraint("Coincident", 8, 2, 5, 1))
sketch9.addConstraint(Sketcher.Constraint("Vertical", 0))
sketch9.addConstraint(Sketcher.Constraint("Horizontal", 1))
sketch9.addConstraint(Sketcher.Constraint("Vertical", 2))
sketch9.addConstraint(Sketcher.Constraint("Horizontal", 3))
sketch9.addConstraint(Sketcher.Constraint("Vertical", 5))
sketch9.addConstraint(Sketcher.Constraint("Horizontal", 6))
sketch9.addConstraint(Sketcher.Constraint("Vertical", 7))
sketch9.addConstraint(Sketcher.Constraint("Horizontal", 8))
sketch9.addConstraint(Sketcher.Constraint("Equal", 4, 9))
sketch9.addConstraint(Sketcher.Constraint("Equal", 3, 6))
sketch9.addConstraint(Sketcher.Constraint("Equal", 8, 0))
sketch9.addConstraint(Sketcher.Constraint("Equal", 2, 5))
sketch9.addConstraint(Sketcher.Constraint("Diameter", 4, 3.0))
sketch9.addConstraint(Sketcher.Constraint("DistanceX", 1, 1, 1, 2, 4.0))
sketch9.addConstraint(Sketcher.Constraint("DistanceX", 4, 3, 9, 3, 107.0))
sketch9.addConstraint(Sketcher.Constraint("DistanceY", 9, 3, 4, 3, 35.0))
sketch9.addConstraint(Sketcher.Constraint("DistanceX", 0, 2, 4, 3, 2.0))
sketch9.addConstraint(Sketcher.Constraint("DistanceY", 0, 2, 4, 3, 2.0))
sketch9.addConstraint(Sketcher.Constraint("DistanceX", 5, 2, 9, 3, 2.0))
sketch9.addConstraint(Sketcher.Constraint("DistanceY", 5, 2, 9, 3, 2.0))
sketch9.addConstraint(Sketcher.Constraint("DistanceX", -1, 1, 4, 3, 162.870016))
sketch9.addConstraint(Sketcher.Constraint("DistanceY", 4, 3, -1, 1, 152.314533))
pad6 = body4.newObject("PartDesign::Pad", "Pad005")
pad6.Profile = sketch9
pad6.Length = 1

# Sketch on XZ plane
sketch10 = body4.newObject("Sketcher::SketchObject", "Sketch009")
sketch10.AttachmentSupport = (doc.getObject("XZ_Plane003"), [""])
sketch10.MapMode = "FlatFace"
sketch10.AttachmentOffset = App.Placement(App.Vector(0, 0, 3), App.Rotation())
sketch10.addGeometry(Part.LineSegment(App.Vector(199, -151, 0), App.Vector(166, -151, 0)), False)
sketch10.addGeometry(Part.LineSegment(App.Vector(166, -151, 0), App.Vector(166, -188, 0)), False)
sketch10.addGeometry(Part.LineSegment(App.Vector(166, -188, 0), App.Vector(199, -188, 0)), False)
sketch10.addGeometry(Part.LineSegment(App.Vector(199, -188, 0), App.Vector(199, -151, 0)), False)
sketch10.addGeometry(Part.LineSegment(App.Vector(200, -151, 0), App.Vector(200, -188, 0)), False)
sketch10.addGeometry(Part.LineSegment(App.Vector(200, -188, 0), App.Vector(233, -188, 0)), False)
sketch10.addGeometry(Part.LineSegment(App.Vector(233, -188, 0), App.Vector(233, -151, 0)), False)
sketch10.addGeometry(Part.LineSegment(App.Vector(233, -151, 0), App.Vector(200, -151, 0)), False)
sketch10.addGeometry(Part.LineSegment(App.Vector(234, -151, 0), App.Vector(234, -188, 0)), False)
sketch10.addGeometry(Part.LineSegment(App.Vector(234, -188, 0), App.Vector(267, -188, 0)), False)
sketch10.addGeometry(Part.LineSegment(App.Vector(267, -188, 0), App.Vector(267, -151, 0)), False)
sketch10.addGeometry(Part.LineSegment(App.Vector(267, -151, 0), App.Vector(234, -151, 0)), False)
sketch10.addConstraint(Sketcher.Constraint("Coincident", 0, 2, 1, 1))
sketch10.addConstraint(Sketcher.Constraint("Coincident", 1, 2, 2, 1))
sketch10.addConstraint(Sketcher.Constraint("Coincident", 2, 2, 3, 1))
sketch10.addConstraint(Sketcher.Constraint("Coincident", 3, 2, 0, 1))
sketch10.addConstraint(Sketcher.Constraint("Coincident", 4, 2, 5, 1))
sketch10.addConstraint(Sketcher.Constraint("Coincident", 5, 2, 6, 1))
sketch10.addConstraint(Sketcher.Constraint("Coincident", 6, 2, 7, 1))
sketch10.addConstraint(Sketcher.Constraint("Coincident", 7, 2, 4, 1))
sketch10.addConstraint(Sketcher.Constraint("Coincident", 8, 2, 9, 1))
sketch10.addConstraint(Sketcher.Constraint("Coincident", 9, 2, 10, 1))
sketch10.addConstraint(Sketcher.Constraint("Coincident", 10, 2, 11, 1))
sketch10.addConstraint(Sketcher.Constraint("Coincident", 11, 2, 8, 1))
sketch10.addConstraint(Sketcher.Constraint("Horizontal", 0))
sketch10.addConstraint(Sketcher.Constraint("Vertical", 1))
sketch10.addConstraint(Sketcher.Constraint("Horizontal", 2))
sketch10.addConstraint(Sketcher.Constraint("Vertical", 3))
sketch10.addConstraint(Sketcher.Constraint("Vertical", 4))
sketch10.addConstraint(Sketcher.Constraint("Horizontal", 5))
sketch10.addConstraint(Sketcher.Constraint("Vertical", 6))
sketch10.addConstraint(Sketcher.Constraint("Horizontal", 7))
sketch10.addConstraint(Sketcher.Constraint("Vertical", 8))
sketch10.addConstraint(Sketcher.Constraint("Horizontal", 9))
sketch10.addConstraint(Sketcher.Constraint("Vertical", 10))
sketch10.addConstraint(Sketcher.Constraint("Horizontal", 11))
sketch10.addConstraint(Sketcher.Constraint("Horizontal", 2, 2, 4, 2))
sketch10.addConstraint(Sketcher.Constraint("Horizontal", 3, 2, 6, 2))
sketch10.addConstraint(Sketcher.Constraint("Horizontal", 5, 2, 8, 2))
sketch10.addConstraint(Sketcher.Constraint("Horizontal", 7, 2, 10, 2))
sketch10.addConstraint(Sketcher.Constraint("Equal", 2, 5))
sketch10.addConstraint(Sketcher.Constraint("Equal", 7, 9))
sketch10.addConstraint(Sketcher.Constraint("DistanceX", 0, 2, 0, 1, 33.0))
sketch10.addConstraint(Sketcher.Constraint("DistanceY", 1, 2, 1, 1, 37.0))
sketch10.addConstraint(Sketcher.Constraint("DistanceX", 2, 2, 4, 2, 1.0))
sketch10.addConstraint(Sketcher.Constraint("DistanceX", 5, 2, 8, 2, 1.0))
sketch10.addConstraint(Sketcher.Constraint("DistanceX", -1, 1, 0, 2, 165.870016))
sketch10.addConstraint(Sketcher.Constraint("DistanceY", 0, 2, -1, 1, 151.314533))
pocket3 = body4.newObject("PartDesign::Pocket", "Pocket002")
pocket3.Profile = sketch10
pocket3.Length = 2

# Sketch on XZ plane
sketch11 = body4.newObject("Sketcher::SketchObject", "Sketch010")
sketch11.AttachmentSupport = (doc.getObject("XZ_Plane003"), [""])
sketch11.MapMode = "FlatFace"
sketch11.AttachmentOffset = App.Placement(App.Vector(0, 0, 3), App.Rotation())
sketch11.addGeometry(Part.LineSegment(App.Vector(198.9, -161.3, 0), App.Vector(198.9, -178.3, 0)), False)
sketch11.addGeometry(Part.LineSegment(App.Vector(198.9, -178.3, 0), App.Vector(199.9, -178.3, 0)), False)
sketch11.addGeometry(Part.LineSegment(App.Vector(199.9, -178.3, 0), App.Vector(199.9, -161.3, 0)), False)
sketch11.addGeometry(Part.LineSegment(App.Vector(199.9, -161.3, 0), App.Vector(198.9, -161.3, 0)), False)
sketch11.addGeometry(Part.LineSegment(App.Vector(232.9, -161.3, 0), App.Vector(232.9, -178.3, 0)), False)
sketch11.addGeometry(Part.LineSegment(App.Vector(232.9, -178.3, 0), App.Vector(233.9, -178.3, 0)), False)
sketch11.addGeometry(Part.LineSegment(App.Vector(233.9, -178.3, 0), App.Vector(233.9, -161.3, 0)), False)
sketch11.addGeometry(Part.LineSegment(App.Vector(233.9, -161.3, 0), App.Vector(232.9, -161.3, 0)), False)
sketch11.addConstraint(Sketcher.Constraint("Coincident", 0, 2, 1, 1))
sketch11.addConstraint(Sketcher.Constraint("Coincident", 1, 2, 2, 1))
sketch11.addConstraint(Sketcher.Constraint("Coincident", 2, 2, 3, 1))
sketch11.addConstraint(Sketcher.Constraint("Coincident", 3, 2, 0, 1))
sketch11.addConstraint(Sketcher.Constraint("Coincident", 4, 2, 5, 1))
sketch11.addConstraint(Sketcher.Constraint("Coincident", 5, 2, 6, 1))
sketch11.addConstraint(Sketcher.Constraint("Coincident", 6, 2, 7, 1))
sketch11.addConstraint(Sketcher.Constraint("Coincident", 7, 2, 4, 1))
sketch11.addConstraint(Sketcher.Constraint("Vertical", 0))
sketch11.addConstraint(Sketcher.Constraint("Horizontal", 1))
sketch11.addConstraint(Sketcher.Constraint("Vertical", 2))
sketch11.addConstraint(Sketcher.Constraint("Horizontal", 3))
sketch11.addConstraint(Sketcher.Constraint("Vertical", 4))
sketch11.addConstraint(Sketcher.Constraint("Horizontal", 5))
sketch11.addConstraint(Sketcher.Constraint("Vertical", 6))
sketch11.addConstraint(Sketcher.Constraint("Horizontal", 7))
sketch11.addConstraint(Sketcher.Constraint("Horizontal", 1, 2, 4, 2))
sketch11.addConstraint(Sketcher.Constraint("Horizontal", 3, 2, 6, 2))
sketch11.addConstraint(Sketcher.Constraint("Equal", 3, 5))
sketch11.addConstraint(Sketcher.Constraint("DistanceX", 1, 1, 1, 2, 1.0))
sketch11.addConstraint(Sketcher.Constraint("DistanceY", 0, 2, 0, 1, 17.0))
sketch11.addConstraint(Sketcher.Constraint("DistanceX", 1, 2, 4, 2, 33.0))
sketch11.addConstraint(Sketcher.Constraint("DistanceX", -1, 1, 0, 2, 198.870016))
sketch11.addConstraint(Sketcher.Constraint("DistanceY", 0, 2, -1, 1, 178.314533))
pocket4 = body4.newObject("PartDesign::Pocket", "Pocket003")
pocket4.Profile = sketch11
pocket4.Length = 3

doc.recompute()
